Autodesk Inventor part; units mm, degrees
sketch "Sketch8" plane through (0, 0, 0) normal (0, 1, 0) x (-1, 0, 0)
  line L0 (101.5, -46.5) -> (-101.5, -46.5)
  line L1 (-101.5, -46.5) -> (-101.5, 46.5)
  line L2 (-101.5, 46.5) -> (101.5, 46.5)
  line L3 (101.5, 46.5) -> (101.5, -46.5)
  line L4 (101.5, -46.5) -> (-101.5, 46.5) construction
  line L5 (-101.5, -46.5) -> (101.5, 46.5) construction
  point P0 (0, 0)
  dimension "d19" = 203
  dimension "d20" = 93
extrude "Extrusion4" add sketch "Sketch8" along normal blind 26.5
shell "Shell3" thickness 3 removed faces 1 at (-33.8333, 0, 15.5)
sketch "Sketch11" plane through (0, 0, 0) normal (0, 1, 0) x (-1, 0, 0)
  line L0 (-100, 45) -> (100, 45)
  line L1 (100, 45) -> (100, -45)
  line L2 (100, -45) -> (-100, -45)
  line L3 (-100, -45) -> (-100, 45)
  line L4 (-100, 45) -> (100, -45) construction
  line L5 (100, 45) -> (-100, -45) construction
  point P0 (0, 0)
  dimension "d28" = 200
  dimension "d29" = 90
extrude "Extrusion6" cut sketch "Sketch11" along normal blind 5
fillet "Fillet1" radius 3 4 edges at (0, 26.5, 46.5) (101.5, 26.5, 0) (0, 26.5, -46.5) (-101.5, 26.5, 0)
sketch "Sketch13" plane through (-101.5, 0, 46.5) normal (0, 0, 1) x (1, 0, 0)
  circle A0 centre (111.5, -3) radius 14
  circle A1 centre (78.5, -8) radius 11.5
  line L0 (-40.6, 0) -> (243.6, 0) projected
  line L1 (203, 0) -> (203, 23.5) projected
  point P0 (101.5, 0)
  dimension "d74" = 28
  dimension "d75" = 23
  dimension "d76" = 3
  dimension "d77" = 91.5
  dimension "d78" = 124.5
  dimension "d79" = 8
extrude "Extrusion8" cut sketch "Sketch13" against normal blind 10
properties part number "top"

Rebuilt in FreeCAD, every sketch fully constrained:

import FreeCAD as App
import Part
import Sketcher
from FreeCAD import Vector
Q = App.Units.Quantity


def edges_at(feature, points):
    """Names of the edges that pass closest to the given points."""
    edges = feature.Shape.Edges
    near = lambda p: min(range(len(edges)), key=lambda i: edges[i].distToShape(Part.Vertex(*p))[0])
    return sorted({f"Edge{near(p) + 1}" for p in points})


def faces_at(feature, points):
    """Names of the faces that lie closest to the given points."""
    faces = feature.Shape.Faces
    near = lambda p: min(range(len(faces)), key=lambda i: faces[i].distToShape(Part.Vertex(*p))[0])
    return sorted({f"Face{near(p) + 1}" for p in points})


def add_polygon(sketch, points):
    """Adds a closed chain of lines whose ends are joined by coincident constraints."""
    first, n = sketch.GeometryCount, len(points)
    for a, b in zip(points, points[1:] + points[:1]):
        sketch.addGeometry(Part.LineSegment(App.Vector(*a, 0), App.Vector(*b, 0)), False)
    for i in range(n):
        sketch.addConstraint(Sketcher.Constraint("Coincident", first + i, 2, first + (i + 1) % n, 1))

doc = App.newDocument("Part")
body = doc.addObject("PartDesign::Body", "Body")

# Sketch on XZ plane
sketch1 = body.newObject("Sketcher::SketchObject", "Sketch")
sketch1.AttachmentSupport = (doc.getObject("XZ_Plane"), [""])
sketch1.MapMode = "FlatFace"
add_polygon(sketch1, [(101.5, -46.5), (-101.5, -46.5), (-101.5, 46.5), (101.5, 46.5)])  # lines 0-3
sketch1.addConstraint([
    Sketcher.Constraint("Horizontal", 0),
    Sketcher.Constraint("Vertical", 1),
    Sketcher.Constraint("Horizontal", 2),
    Sketcher.Constraint("Vertical", 3),
    Sketcher.Constraint("Symmetric", 0, 2, 2, 2, -1, 1),
    Sketcher.Constraint("DistanceX", 0, 2, 0, 1, Q("203 mm")),
    Sketcher.Constraint("DistanceY", 1, 1, 1, 2, Q("93 mm")),
])
pad1 = body.newObject("PartDesign::Pad", "Pad")
pad1.Profile = sketch1
pad1.Length = 26.5
pad1.Reversed = True
doc.recompute()

thickness = body.newObject("PartDesign::Thickness", "Thickness")
thickness.Base = (pad1, faces_at(pad1, [(-33.833, 0, 15.5)]))
thickness.Value = 3
thickness.Reversed = True
thickness.Join = "Intersection"

# Sketch on XZ plane
sketch2 = body.newObject("Sketcher::SketchObject", "Sketch001")
sketch2.AttachmentSupport = (doc.getObject("XZ_Plane"), [""])
sketch2.MapMode = "FlatFace"
add_polygon(sketch2, [(-100, 45), (100, 45), (100, -45), (-100, -45)])  # lines 0-3
sketch2.addConstraint([
    Sketcher.Constraint("Horizontal", 0),
    Sketcher.Constraint("Vertical", 1),
    Sketcher.Constraint("Horizontal", 2),
    Sketcher.Constraint("Vertical", 3),
    Sketcher.Constraint("Symmetric", 0, 2, 2, 2, -1, 1),
    Sketcher.Constraint("DistanceX", 0, 1, 0, 2, Q("200 mm")),
    Sketcher.Constraint("DistanceY", 1, 2, 1, 1, Q("90 mm")),
])
pocket1 = body.newObject("PartDesign::Pocket", "Pocket")
pocket1.Profile = sketch2
pocket1.Length = 5
doc.recompute()

fillet = body.newObject("PartDesign::Fillet", "Fillet")
fillet.Base = (pocket1, edges_at(pocket1, [
    (0, 26.5, 46.5),
    (101.5, 26.5, 0),
    (0, 26.5, -46.5),
    (-101.5, 26.5, 0),
]))
fillet.Radius = 3

# Sketch on XY plane
sketch3 = body.newObject("Sketcher::SketchObject", "Sketch002")
sketch3.AttachmentSupport = (doc.getObject("XY_Plane"), [""])
sketch3.MapMode = "FlatFace"
sketch3.AttachmentOffset = App.Placement(Vector(0, 0, 46.5), App.Rotation())
sketch3.addGeometry([
    Part.Circle(Vector(10, -3, 0), Vector(0, 0, 1), 14),
    Part.Circle(Vector(-23, -8, 0), Vector(0, 0, 1), 11.5),
], False)
sketch3.addConstraint([
    Sketcher.Constraint("Diameter", 0, Q("28 mm")),
    Sketcher.Constraint("Diameter", 1, Q("23 mm")),
    Sketcher.Constraint("DistanceY", 0, 3, -1, 1, Q("3 mm")),
    Sketcher.Constraint("DistanceX", 1, 3, -1, 1, Q("23 mm")),
    Sketcher.Constraint("DistanceY", 1, 3, -1, 1, Q("8 mm")),
    Sketcher.Constraint("DistanceX", -1, 1, 0, 3, Q("10 mm")),
])
pocket2 = body.newObject("PartDesign::Pocket", "Pocket001")
pocket2.Profile = sketch3
pocket2.Length = 10

doc.recompute()
